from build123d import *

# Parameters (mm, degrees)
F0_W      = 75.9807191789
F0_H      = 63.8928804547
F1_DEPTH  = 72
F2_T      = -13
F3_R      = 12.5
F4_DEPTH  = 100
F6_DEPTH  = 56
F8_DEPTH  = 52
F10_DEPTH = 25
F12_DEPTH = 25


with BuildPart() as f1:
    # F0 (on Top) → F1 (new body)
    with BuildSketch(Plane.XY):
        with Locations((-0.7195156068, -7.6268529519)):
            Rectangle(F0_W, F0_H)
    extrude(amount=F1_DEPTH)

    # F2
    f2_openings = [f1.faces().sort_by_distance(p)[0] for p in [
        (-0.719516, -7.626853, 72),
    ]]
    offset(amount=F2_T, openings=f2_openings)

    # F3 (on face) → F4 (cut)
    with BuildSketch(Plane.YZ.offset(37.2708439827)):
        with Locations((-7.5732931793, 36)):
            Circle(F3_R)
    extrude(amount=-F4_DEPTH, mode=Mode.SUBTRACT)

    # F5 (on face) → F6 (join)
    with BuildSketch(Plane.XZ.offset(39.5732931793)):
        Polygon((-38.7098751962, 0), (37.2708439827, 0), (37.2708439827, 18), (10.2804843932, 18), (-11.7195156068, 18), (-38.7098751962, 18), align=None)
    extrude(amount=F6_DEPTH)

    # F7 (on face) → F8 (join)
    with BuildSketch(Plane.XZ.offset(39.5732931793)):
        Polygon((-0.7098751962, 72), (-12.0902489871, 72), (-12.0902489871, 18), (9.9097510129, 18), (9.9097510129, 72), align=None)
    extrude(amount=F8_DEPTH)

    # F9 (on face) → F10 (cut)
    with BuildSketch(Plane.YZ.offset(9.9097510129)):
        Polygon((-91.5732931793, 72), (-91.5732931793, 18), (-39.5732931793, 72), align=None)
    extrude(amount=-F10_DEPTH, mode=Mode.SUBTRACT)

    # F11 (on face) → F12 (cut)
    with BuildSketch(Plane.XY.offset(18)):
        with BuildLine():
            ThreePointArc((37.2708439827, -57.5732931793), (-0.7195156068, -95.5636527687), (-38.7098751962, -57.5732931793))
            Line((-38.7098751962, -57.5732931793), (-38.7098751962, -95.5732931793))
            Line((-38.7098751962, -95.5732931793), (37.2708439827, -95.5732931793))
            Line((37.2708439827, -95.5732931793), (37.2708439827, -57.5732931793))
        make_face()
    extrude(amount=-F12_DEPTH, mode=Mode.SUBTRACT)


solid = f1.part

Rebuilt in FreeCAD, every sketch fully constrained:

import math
import FreeCAD as App
import Part
import Sketcher
from FreeCAD import Vector


def faces_at(feature, points):
    """Names of the faces that lie closest to the given points."""
    faces = feature.Shape.Faces
    near = lambda p: min(range(len(faces)), key=lambda i: faces[i].distToShape(Part.Vertex(*p))[0])
    return sorted({f"Face{near(p) + 1}" for p in points})

doc = App.newDocument("Part")
body = doc.addObject("PartDesign::Body", "Body")

# Sketch on XY plane
sketch1 = body.newObject("Sketcher::SketchObject", "Sketch")
sketch1.AttachmentSupport = (doc.getObject("XY_Plane"), [""])
sketch1.MapMode = "FlatFace"
sketch1.addGeometry(Part.LineSegment(Vector(-38.709875, 24.319587, 0), Vector(-38.709875, -39.573293, 0)), False)
sketch1.addGeometry(Part.LineSegment(Vector(-38.709875, -39.573293, 0), Vector(37.270844, -39.573293, 0)), False)
sketch1.addGeometry(Part.LineSegment(Vector(37.270844, -39.573293, 0), Vector(37.270844, 24.319587, 0)), False)
sketch1.addGeometry(Part.LineSegment(Vector(37.270844, 24.319587, 0), Vector(-38.709875, 24.319587, 0)), False)
sketch1.addConstraint(Sketcher.Constraint("Coincident", 0, 2, 1, 1))
sketch1.addConstraint(Sketcher.Constraint("Coincident", 1, 2, 2, 1))
sketch1.addConstraint(Sketcher.Constraint("Coincident", 2, 2, 3, 1))
sketch1.addConstraint(Sketcher.Constraint("Coincident", 3, 2, 0, 1))
sketch1.addConstraint(Sketcher.Constraint("Vertical", 0))
sketch1.addConstraint(Sketcher.Constraint("Horizontal", 1))
sketch1.addConstraint(Sketcher.Constraint("Vertical", 2))
sketch1.addConstraint(Sketcher.Constraint("Horizontal", 3))
sketch1.addConstraint(Sketcher.Constraint("DistanceX", 1, 1, 1, 2, 75.980719))
sketch1.addConstraint(Sketcher.Constraint("DistanceY", 0, 2, 0, 1, 63.89288))
sketch1.addConstraint(Sketcher.Constraint("DistanceX", 0, 2, -1, 1, 38.709875))
sketch1.addConstraint(Sketcher.Constraint("DistanceY", 0, 2, -1, 1, 39.573293))
pad1 = body.newObject("PartDesign::Pad", "Pad")
pad1.Profile = sketch1
pad1.Length = 72
doc.recompute()

thickness = body.newObject("PartDesign::Thickness", "Thickness")
thickness.Base = (pad1, faces_at(pad1, [(-0.72, -7.627, 72)]))
thickness.Value = 13
thickness.Reversed = True
thickness.Join = "Arc"

# Sketch on YZ plane
sketch2 = body.newObject("Sketcher::SketchObject", "Sketch001")
sketch2.AttachmentSupport = (doc.getObject("YZ_Plane"), [""])
sketch2.MapMode = "FlatFace"
sketch2.AttachmentOffset = App.Placement(Vector(0, 0, 37.270844), App.Rotation())
sketch2.addGeometry(Part.Circle(Vector(-7.573293, 36, 0), Vector(0, 0, 1), 12.5), False)
sketch2.addConstraint(Sketcher.Constraint("Diameter", 0, 25.0))
sketch2.addConstraint(Sketcher.Constraint("DistanceY", -1, 1, 0, 3, 36.0))
sketch2.addConstraint(Sketcher.Constraint("DistanceX", 0, 3, -1, 1, 7.573293))
pocket1 = body.newObject("PartDesign::Pocket", "Pocket")
pocket1.Profile = sketch2
pocket1.Length = 100

# Sketch on XZ plane
sketch3 = body.newObject("Sketcher::SketchObject", "Sketch002")
sketch3.AttachmentSupport = (doc.getObject("XZ_Plane"), [""])
sketch3.MapMode = "FlatFace"
sketch3.AttachmentOffset = App.Placement(Vector(0, 0, 39.573293), App.Rotation())
sketch3.addGeometry(Part.LineSegment(Vector(-38.709875, 0, 0), Vector(37.270844, 0, 0)), False)
sketch3.addGeometry(Part.LineSegment(Vector(37.270844, 0, 0), Vector(37.270844, 18, 0)), False)
sketch3.addGeometry(Part.LineSegment(Vector(37.270844, 18, 0), Vector(-38.709875, 18, 0)), False)
sketch3.addGeometry(Part.LineSegment(Vector(-38.709875, 18, 0), Vector(-38.709875, 0, 0)), False)
sketch3.addConstraint(Sketcher.Constraint("Coincident", 0, 2, 1, 1))
sketch3.addConstraint(Sketcher.Constraint("Coincident", 1, 2, 2, 1))
sketch3.addConstraint(Sketcher.Constraint("Coincident", 2, 2, 3, 1))
sketch3.addConstraint(Sketcher.Constraint("Coincident", 3, 2, 0, 1))
sketch3.addConstraint(Sketcher.Constraint("Horizontal", 0))
sketch3.addConstraint(Sketcher.Constraint("Vertical", 1))
sketch3.addConstraint(Sketcher.Constraint("Horizontal", 2))
sketch3.addConstraint(Sketcher.Constraint("Vertical", 3))
sketch3.addConstraint(Sketcher.Constraint("PointOnObject", 0, 2, -1))
sketch3.addConstraint(Sketcher.Constraint("DistanceY", 1, 1, 1, 2, 18.0))
sketch3.addConstraint(Sketcher.Constraint("DistanceX", 0, 1, 0, 2, 75.980719))
sketch3.addConstraint(Sketcher.Constraint("DistanceX", -1, 1, 0, 2, 37.270844))
pad2 = body.newObject("PartDesign::Pad", "Pad001")
pad2.Profile = sketch3
pad2.Length = 56

# Sketch on XZ plane
sketch4 = body.newObject("Sketcher::SketchObject", "Sketch003")
sketch4.AttachmentSupport = (doc.getObject("XZ_Plane"), [""])
sketch4.MapMode = "FlatFace"
sketch4.AttachmentOffset = App.Placement(Vector(0, 0, 39.573293), App.Rotation())
sketch4.addGeometry(Part.LineSegment(Vector(-12.090249, 72, 0), Vector(-12.090249, 18, 0)), False)
sketch4.addGeometry(Part.LineSegment(Vector(-12.090249, 18, 0), Vector(9.909751, 18, 0)), False)
sketch4.addGeometry(Part.LineSegment(Vector(9.909751, 18, 0), Vector(9.909751, 72, 0)), False)
sketch4.addGeometry(Part.LineSegment(Vector(9.909751, 72, 0), Vector(-12.090249, 72, 0)), False)
sketch4.addConstraint(Sketcher.Constraint("Coincident", 0, 2, 1, 1))
sketch4.addConstraint(Sketcher.Constraint("Coincident", 1, 2, 2, 1))
sketch4.addConstraint(Sketcher.Constraint("Coincident", 2, 2, 3, 1))
sketch4.addConstraint(Sketcher.Constraint("Coincident", 3, 2, 0, 1))
sketch4.addConstraint(Sketcher.Constraint("Vertical", 0))
sketch4.addConstraint(Sketcher.Constraint("Horizontal", 1))
sketch4.addConstraint(Sketcher.Constraint("Vertical", 2))
sketch4.addConstraint(Sketcher.Constraint("Horizontal", 3))
sketch4.addConstraint(Sketcher.Constraint("DistanceX", 1, 1, 1, 2, 22.0))
sketch4.addConstraint(Sketcher.Constraint("DistanceY", 0, 2, 0, 1, 54.0))
sketch4.addConstraint(Sketcher.Constraint("DistanceY", -1, 1, 0, 2, 18.0))
sketch4.addConstraint(Sketcher.Constraint("DistanceX", 0, 2, -1, 1, 12.090249))
pad3 = body.newObject("PartDesign::Pad", "Pad002")
pad3.Profile = sketch4
pad3.Length = 52

# Sketch on YZ plane
sketch5 = body.newObject("Sketcher::SketchObject", "Sketch004")
sketch5.AttachmentSupport = (doc.getObject("YZ_Plane"), [""])
sketch5.MapMode = "FlatFace"
sketch5.AttachmentOffset = App.Placement(Vector(0, 0, 9.909751), App.Rotation())
sketch5.addGeometry(Part.LineSegment(Vector(-91.573293, 72, 0), Vector(-91.573293, 18, 0)), False)
sketch5.addGeometry(Part.LineSegment(Vector(-91.573293, 18, 0), Vector(-39.573293, 72, 0)), False)
sketch5.addGeometry(Part.LineSegment(Vector(-39.573293, 72, 0), Vector(-91.573293, 72, 0)), False)
sketch5.addConstraint(Sketcher.Constraint("Coincident", 0, 2, 1, 1))
sketch5.addConstraint(Sketcher.Constraint("Coincident", 1, 2, 2, 1))
sketch5.addConstraint(Sketcher.Constraint("Coincident", 2, 2, 0, 1))
sketch5.addConstraint(Sketcher.Constraint("Vertical", 0))
sketch5.addConstraint(Sketcher.Constraint("Horizontal", 2))
sketch5.addConstraint(Sketcher.Constraint("DistanceX", 2, 2, 2, 1, 52.0))
sketch5.addConstraint(Sketcher.Constraint("DistanceY", 0, 2, 0, 1, 54.0))
sketch5.addConstraint(Sketcher.Constraint("DistanceY", -1, 1, 0, 2, 18.0))
sketch5.addConstraint(Sketcher.Constraint("DistanceX", 0, 2, -1, 1, 91.573293))
pocket2 = body.newObject("PartDesign::Pocket", "Pocket001")
pocket2.Profile = sketch5
pocket2.Length = 25

# Sketch on XY plane
sketch6 = body.newObject("Sketcher::SketchObject", "Sketch005")
sketch6.AttachmentSupport = (doc.getObject("XY_Plane"), [""])
sketch6.MapMode = "FlatFace"
sketch6.AttachmentOffset = App.Placement(Vector(0, 0, 18), App.Rotation())
sketch6.addGeometry(Part.ArcOfCircle(Part.Circle(Vector(-0.719516, -57.573293, 0), Vector(0, 0, 1), 37.99036), math.radians(180), math.radians(360)), False)
sketch6.addGeometry(Part.LineSegment(Vector(-38.709875, -57.573293, 0), Vector(-38.709875, -95.573293, 0)), False)
sketch6.addGeometry(Part.LineSegment(Vector(-38.709875, -95.573293, 0), Vector(37.270844, -95.573293, 0)), False)
sketch6.addGeometry(Part.LineSegment(Vector(37.270844, -95.573293, 0), Vector(37.270844, -57.573293, 0)), False)
sketch6.addConstraint(Sketcher.Constraint("Tangent", 0, 1, 1, 1))
sketch6.addConstraint(Sketcher.Constraint("Coincident", 1, 2, 2, 1))
sketch6.addConstraint(Sketcher.Constraint("Coincident", 2, 2, 3, 1))
sketch6.addConstraint(Sketcher.Constraint("Tangent", 3, 2, 0, 2))
sketch6.addConstraint(Sketcher.Constraint("Vertical", 1))
sketch6.addConstraint(Sketcher.Constraint("Horizontal", 2))
sketch6.addConstraint(Sketcher.Constraint("Vertical", 3))
sketch6.addConstraint(Sketcher.Constraint("DistanceY", 1, 2, 1, 1, 38.0))
sketch6.addConstraint(Sketcher.Constraint("Radius", 0, 37.99036))
sketch6.addConstraint(Sketcher.Constraint("DistanceX", 0, 3, -1, 1, 0.719516))
sketch6.addConstraint(Sketcher.Constraint("DistanceY", 0, 3, -1, 1, 57.573293))
pocket3 = body.newObject("PartDesign::Pocket", "Pocket002")
pocket3.Profile = sketch6
pocket3.Length = 25

doc.recompute()
